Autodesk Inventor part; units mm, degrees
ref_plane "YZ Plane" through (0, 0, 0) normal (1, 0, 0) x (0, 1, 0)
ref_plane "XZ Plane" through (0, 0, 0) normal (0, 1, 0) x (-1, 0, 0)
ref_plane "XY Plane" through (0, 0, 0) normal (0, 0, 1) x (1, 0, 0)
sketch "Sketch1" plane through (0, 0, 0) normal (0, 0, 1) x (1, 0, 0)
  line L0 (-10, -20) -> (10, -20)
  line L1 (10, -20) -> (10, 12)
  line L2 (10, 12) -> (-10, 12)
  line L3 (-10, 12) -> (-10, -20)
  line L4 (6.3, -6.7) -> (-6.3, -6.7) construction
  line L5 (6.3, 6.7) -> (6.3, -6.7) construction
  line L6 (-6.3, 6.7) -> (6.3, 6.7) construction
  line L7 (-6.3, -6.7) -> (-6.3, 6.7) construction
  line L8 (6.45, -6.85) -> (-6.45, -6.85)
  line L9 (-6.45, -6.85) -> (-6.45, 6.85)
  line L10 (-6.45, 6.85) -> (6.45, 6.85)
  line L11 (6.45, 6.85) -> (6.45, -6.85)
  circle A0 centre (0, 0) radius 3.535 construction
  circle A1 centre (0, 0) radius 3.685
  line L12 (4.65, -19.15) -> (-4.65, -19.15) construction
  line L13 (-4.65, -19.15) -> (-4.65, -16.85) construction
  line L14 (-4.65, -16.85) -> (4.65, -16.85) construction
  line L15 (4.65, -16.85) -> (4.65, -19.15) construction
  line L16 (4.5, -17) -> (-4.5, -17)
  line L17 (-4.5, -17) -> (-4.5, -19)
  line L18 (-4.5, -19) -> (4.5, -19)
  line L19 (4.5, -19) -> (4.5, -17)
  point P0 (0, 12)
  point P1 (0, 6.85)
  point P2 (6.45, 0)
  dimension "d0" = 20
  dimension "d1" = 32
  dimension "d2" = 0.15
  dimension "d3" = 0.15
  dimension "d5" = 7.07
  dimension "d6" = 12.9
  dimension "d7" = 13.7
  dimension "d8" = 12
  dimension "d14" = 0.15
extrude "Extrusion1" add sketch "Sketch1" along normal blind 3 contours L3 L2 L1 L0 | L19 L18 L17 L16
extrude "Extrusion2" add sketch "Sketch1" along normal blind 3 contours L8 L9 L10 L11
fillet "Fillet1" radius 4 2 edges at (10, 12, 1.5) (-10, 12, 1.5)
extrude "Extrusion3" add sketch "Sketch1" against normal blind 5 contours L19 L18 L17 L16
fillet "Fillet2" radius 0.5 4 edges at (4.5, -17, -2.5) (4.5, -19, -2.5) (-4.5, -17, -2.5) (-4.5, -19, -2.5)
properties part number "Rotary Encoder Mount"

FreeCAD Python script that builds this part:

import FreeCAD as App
import Part
import Sketcher

V = App.Vector
Q = App.Units.Quantity


def edges_at(feature, points):
    """Names of the edges that pass closest to the given points."""
    edges = feature.Shape.Edges
    near = lambda p: min(range(len(edges)), key=lambda i: edges[i].distToShape(Part.Vertex(*p))[0])
    return sorted({f"Edge{near(p) + 1}" for p in points})

doc = App.newDocument("Part")
body = doc.addObject("PartDesign::Body", "Body")

sketch1 = body.newObject("Sketcher::SketchObject", "Sketch")
sketch1.AttachmentSupport = (doc.getObject("XY_Plane"), [""])
sketch1.MapMode = "FlatFace"
sketch1.addGeometry([
    Part.LineSegment(V(-10, 12, 0), V(-10, -20, 0)),
    Part.LineSegment(V(-10, -20, 0), V(10, -20, 0)),
    Part.LineSegment(V(10, -20, 0), V(10, 12, 0)),
    Part.LineSegment(V(10, 12, 0), V(-10, 12, 0)),
    Part.LineSegment(V(6, 7, 0), V(6, -7, 0)),
    Part.LineSegment(V(6, -7, 0), V(-6, -7, 0)),
    Part.LineSegment(V(-6, -7, 0), V(-6, 7, 0)),
    Part.LineSegment(V(-6, 7, 0), V(6, 7, 0)),
], False)
sketch1.addConstraint([
    Sketcher.Constraint("Coincident", 0, 2, 1, 1),
    Sketcher.Constraint("Coincident", 1, 2, 2, 1),
    Sketcher.Constraint("Coincident", 2, 2, 3, 1),
    Sketcher.Constraint("Coincident", 3, 2, 0, 1),
    Sketcher.Constraint("Coincident", 4, 2, 5, 1),
    Sketcher.Constraint("Coincident", 5, 2, 6, 1),
    Sketcher.Constraint("Coincident", 6, 2, 7, 1),
    Sketcher.Constraint("Coincident", 7, 2, 4, 1),
    Sketcher.Constraint("Vertical", 0),
    Sketcher.Constraint("Horizontal", 1),
    Sketcher.Constraint("Vertical", 2),
    Sketcher.Constraint("Horizontal", 3),
    Sketcher.Constraint("Vertical", 4),
    Sketcher.Constraint("Horizontal", 5),
    Sketcher.Constraint("Vertical", 6),
    Sketcher.Constraint("Horizontal", 7),
    Sketcher.Constraint("Symmetric", 4, 2, 6, 2, -1, 1),
    Sketcher.Constraint("DistanceX", 1, 1, 1, 2, Q("20 mm")),
    Sketcher.Constraint("DistanceY", 0, 2, 0, 1, Q("32 mm")),
    Sketcher.Constraint("DistanceX", 5, 2, 5, 1, Q("12.9 mm")),
    Sketcher.Constraint("DistanceY", 4, 2, 4, 1, Q("13.7 mm")),
    Sketcher.Constraint("DistanceY", 0, 2, -1, 1, Q("20 mm")),
    Sketcher.Constraint("DistanceX", 0, 2, -1, 1, Q("10 mm")),
])
pad1 = body.newObject("PartDesign::Pad", "Pad")
pad1.Profile = sketch1
pad1.Length = 3

sketch2 = body.newObject("Sketcher::SketchObject", "Sketch001")
sketch2.AttachmentSupport = (doc.getObject("XY_Plane"), [""])
sketch2.MapMode = "FlatFace"
sketch2.addGeometry([
    Part.LineSegment(V(-6.5, -6.8, 0), V(6.5, -6.8, 0)),
    Part.LineSegment(V(6.5, -6.8, 0), V(6.5, 6.8, 0)),
    Part.LineSegment(V(6.5, 6.8, 0), V(-6.5, 6.8, 0)),
    Part.LineSegment(V(-6.5, 6.8, 0), V(-6.5, -6.8, 0)),
    Part.Circle(V(0, 0, 0), V(0, 0, 1), 3.7),
], False)
sketch2.addConstraint([
    Sketcher.Constraint("Coincident", 0, 2, 1, 1),
    Sketcher.Constraint("Coincident", 1, 2, 2, 1),
    Sketcher.Constraint("Coincident", 2, 2, 3, 1),
    Sketcher.Constraint("Coincident", 3, 2, 0, 1),
    Sketcher.Constraint("Horizontal", 0),
    Sketcher.Constraint("Vertical", 1),
    Sketcher.Constraint("Horizontal", 2),
    Sketcher.Constraint("Vertical", 3),
    Sketcher.Constraint("Coincident", 4, 3, -1, 1),
    Sketcher.Constraint("Symmetric", 0, 2, 2, 2, -1, 1),
    Sketcher.Constraint("DistanceX", 0, 1, 0, 2, Q("12.9 mm")),
    Sketcher.Constraint("DistanceY", 1, 1, 1, 2, Q("13.7 mm")),
    Sketcher.Constraint("Diameter", 4, Q("7.37 mm")),
])
pad2 = body.newObject("PartDesign::Pad", "Pad001")
pad2.Profile = sketch2
pad2.Length = 3
doc.recompute()

fillet = body.newObject("PartDesign::Fillet", "Fillet")
fillet.Base = (pad2, edges_at(pad2, [(10, 12, 1.5), (-10, 12, 1.5)]))
fillet.Radius = 4

sketch3 = body.newObject("Sketcher::SketchObject", "Sketch002")
sketch3.AttachmentSupport = (doc.getObject("XY_Plane"), [""])
sketch3.MapMode = "FlatFace"
sketch3.addGeometry([
    Part.LineSegment(V(4.5, -19, 0), V(4.5, -17, 0)),
    Part.LineSegment(V(4.5, -17, 0), V(-4.5, -17, 0)),
    Part.LineSegment(V(-4.5, -17, 0), V(-4.5, -19, 0)),
    Part.LineSegment(V(-4.5, -19, 0), V(4.5, -19, 0)),
], False)
sketch3.addConstraint([
    Sketcher.Constraint("Coincident", 0, 2, 1, 1),
    Sketcher.Constraint("Coincident", 1, 2, 2, 1),
    Sketcher.Constraint("Coincident", 2, 2, 3, 1),
    Sketcher.Constraint("Coincident", 3, 2, 0, 1),
    Sketcher.Constraint("Vertical", 0),
    Sketcher.Constraint("Horizontal", 1),
    Sketcher.Constraint("Vertical", 2),
    Sketcher.Constraint("Horizontal", 3),
    Sketcher.Constraint("DistanceX", 1, 2, 1, 1, Q("9 mm")),
    Sketcher.Constraint("DistanceY", 0, 1, 0, 2, Q("2 mm")),
    Sketcher.Constraint("DistanceY", 0, 2, -1, 1, Q("17 mm")),
    Sketcher.Constraint("DistanceX", -1, 1, 0, 2, Q("4.5 mm")),
])
pad3 = body.newObject("PartDesign::Pad", "Pad002")
pad3.Profile = sketch3
pad3.Length = 5
pad3.Reversed = True
doc.recompute()

fillet2 = body.newObject("PartDesign::Fillet", "Fillet001")
fillet2.Base = (pad3, edges_at(pad3, [
    (4.5, -17, -2.5),
    (4.5, -19, -2.5),
    (-4.5, -17, -2.5),
    (-4.5, -19, -2.5),
]))
fillet2.Radius = 0.5

doc.recompute()
